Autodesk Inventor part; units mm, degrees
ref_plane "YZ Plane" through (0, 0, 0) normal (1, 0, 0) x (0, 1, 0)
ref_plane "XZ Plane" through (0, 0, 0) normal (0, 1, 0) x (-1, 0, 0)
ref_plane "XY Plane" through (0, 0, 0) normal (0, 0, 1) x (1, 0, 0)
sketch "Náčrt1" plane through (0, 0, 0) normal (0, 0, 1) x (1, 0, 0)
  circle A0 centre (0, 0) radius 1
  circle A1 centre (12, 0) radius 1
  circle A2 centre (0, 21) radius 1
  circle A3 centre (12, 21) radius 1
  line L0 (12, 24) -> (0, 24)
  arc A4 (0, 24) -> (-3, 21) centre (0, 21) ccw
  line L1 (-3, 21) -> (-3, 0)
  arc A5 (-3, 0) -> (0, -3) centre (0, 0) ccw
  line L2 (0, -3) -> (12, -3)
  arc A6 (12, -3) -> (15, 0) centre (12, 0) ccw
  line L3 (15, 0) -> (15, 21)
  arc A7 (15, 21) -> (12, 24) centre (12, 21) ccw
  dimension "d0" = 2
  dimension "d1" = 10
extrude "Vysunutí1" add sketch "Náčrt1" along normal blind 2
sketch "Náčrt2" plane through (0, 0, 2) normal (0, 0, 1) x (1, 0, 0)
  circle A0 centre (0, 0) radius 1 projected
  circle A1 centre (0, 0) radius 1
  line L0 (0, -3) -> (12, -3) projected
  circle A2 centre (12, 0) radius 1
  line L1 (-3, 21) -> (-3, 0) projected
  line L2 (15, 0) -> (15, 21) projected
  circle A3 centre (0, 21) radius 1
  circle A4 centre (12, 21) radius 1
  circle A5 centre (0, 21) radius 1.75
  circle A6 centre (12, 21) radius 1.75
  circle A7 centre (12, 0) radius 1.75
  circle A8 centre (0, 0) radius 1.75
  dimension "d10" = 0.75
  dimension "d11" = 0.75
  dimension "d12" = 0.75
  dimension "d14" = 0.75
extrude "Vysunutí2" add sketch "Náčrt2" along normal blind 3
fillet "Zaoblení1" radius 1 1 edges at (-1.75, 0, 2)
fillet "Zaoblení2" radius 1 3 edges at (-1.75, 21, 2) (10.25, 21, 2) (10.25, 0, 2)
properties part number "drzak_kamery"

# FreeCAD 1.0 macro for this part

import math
import FreeCAD as App
import Part
import Sketcher


def edges_at(feature, points):
    """Names of the edges that pass closest to the given points."""
    edges = feature.Shape.Edges
    near = lambda p: min(range(len(edges)), key=lambda i: edges[i].distToShape(Part.Vertex(*p))[0])
    return sorted({f"Edge{near(p) + 1}" for p in points})

doc = App.newDocument("Part")
body = doc.addObject("PartDesign::Body", "Body")

# Sketch on XY plane
sketch1 = body.newObject("Sketcher::SketchObject", "Sketch")
sketch1.AttachmentSupport = (doc.getObject("XY_Plane"), [""])
sketch1.MapMode = "FlatFace"
sketch1.addGeometry([
    Part.ArcOfCircle(Part.Circle(App.Vector(12, 21, 0), App.Vector(0, 0, 1), 3), math.radians(0), math.radians(90)),  # 0
    Part.LineSegment(App.Vector(12, 24, 0), App.Vector(0, 24, 0)),  # 1
    Part.ArcOfCircle(Part.Circle(App.Vector(0, 21, 0), App.Vector(0, 0, 1), 3), math.radians(90), math.radians(180)),  # 2
    Part.LineSegment(App.Vector(-3, 21, 0), App.Vector(-3, 0, 0)),  # 3
    Part.ArcOfCircle(Part.Circle(App.Vector(0, 0, 0), App.Vector(0, 0, 1), 3), math.radians(180), math.radians(270)),  # 4
    Part.LineSegment(App.Vector(0, -3, 0), App.Vector(12, -3, 0)),  # 5
    Part.ArcOfCircle(Part.Circle(App.Vector(12, 0, 0), App.Vector(0, 0, 1), 3), math.radians(-90), math.radians(0)),  # 6
    Part.LineSegment(App.Vector(15, 0, 0), App.Vector(15, 21, 0)),  # 7
    Part.Circle(App.Vector(0, 0, 0), App.Vector(0, 0, 1), 1),  # 8
    Part.Circle(App.Vector(12, 0, 0), App.Vector(0, 0, 1), 1),  # 9
    Part.Circle(App.Vector(0, 21, 0), App.Vector(0, 0, 1), 1),  # 10
    Part.Circle(App.Vector(12, 21, 0), App.Vector(0, 0, 1), 1),  # 11
], False)
sketch1.addConstraint([
    Sketcher.Constraint("Tangent", 0, 2, 1, 1),
    Sketcher.Constraint("Tangent", 1, 2, 2, 1),
    Sketcher.Constraint("Tangent", 2, 2, 3, 1),
    Sketcher.Constraint("Tangent", 3, 2, 4, 1),
    Sketcher.Constraint("Tangent", 4, 2, 5, 1),
    Sketcher.Constraint("Tangent", 5, 2, 6, 1),
    Sketcher.Constraint("Tangent", 6, 2, 7, 1),
    Sketcher.Constraint("Tangent", 7, 2, 0, 1),
    Sketcher.Constraint("Horizontal", 1),
    Sketcher.Constraint("Vertical", 3),
    Sketcher.Constraint("Horizontal", 5),
    Sketcher.Constraint("Vertical", 7),
    Sketcher.Constraint("Coincident", 4, 3, -1, 1),
    Sketcher.Constraint("Coincident", 8, 3, -1, 1),
    Sketcher.Constraint("Coincident", 9, 3, 6, 3),
    Sketcher.Constraint("Coincident", 10, 3, 2, 3),
    Sketcher.Constraint("Coincident", 11, 3, 0, 3),
    Sketcher.Constraint("Equal", 0, 2),
    Sketcher.Constraint("Equal", 2, 4),
    Sketcher.Constraint("Equal", 4, 6),
    Sketcher.Constraint("Equal", 8, 9),
    Sketcher.Constraint("Equal", 9, 10),
    Sketcher.Constraint("Equal", 10, 11),
    Sketcher.Constraint("Diameter", 8, 2.0),
    Sketcher.Constraint("Radius", 0, 3.0),
    Sketcher.Constraint("DistanceX", 1, 2, 1, 1, 12.0),
    Sketcher.Constraint("DistanceY", 3, 2, 3, 1, 21.0),
])
pad1 = body.newObject("PartDesign::Pad", "Pad")
pad1.Profile = sketch1
pad1.Length = 2

# Sketch on XY plane
sketch2 = body.newObject("Sketcher::SketchObject", "Sketch001")
sketch2.AttachmentSupport = (doc.getObject("XY_Plane"), [""])
sketch2.MapMode = "FlatFace"
sketch2.AttachmentOffset = App.Placement(App.Vector(0, 0, 2), App.Rotation())
sketch2.addGeometry([
    Part.Circle(App.Vector(0, 21, 0), App.Vector(0, 0, 1), 1.75),  # 0
    Part.Circle(App.Vector(0, 21, 0), App.Vector(0, 0, 1), 1),  # 1
    Part.Circle(App.Vector(12, 21, 0), App.Vector(0, 0, 1), 1.75),  # 2
    Part.Circle(App.Vector(12, 21, 0), App.Vector(0, 0, 1), 1),  # 3
    Part.Circle(App.Vector(12, 0, 0), App.Vector(0, 0, 1), 1.75),  # 4
    Part.Circle(App.Vector(12, 0, 0), App.Vector(0, 0, 1), 1),  # 5
    Part.Circle(App.Vector(0, 0, 0), App.Vector(0, 0, 1), 1.75),  # 6
    Part.Circle(App.Vector(0, 0, 0), App.Vector(0, 0, 1), 1),  # 7
], False)
sketch2.addConstraint([
    Sketcher.Constraint("Coincident", 6, 3, -1, 1),
    Sketcher.Constraint("Coincident", 7, 3, -1, 1),
    Sketcher.Constraint("Coincident", 1, 3, 0, 3),
    Sketcher.Constraint("Coincident", 3, 3, 2, 3),
    Sketcher.Constraint("Coincident", 5, 3, 4, 3),
    Sketcher.Constraint("Equal", 0, 2),
    Sketcher.Constraint("Equal", 1, 3),
    Sketcher.Constraint("Equal", 2, 4),
    Sketcher.Constraint("Equal", 3, 5),
    Sketcher.Constraint("Equal", 4, 6),
    Sketcher.Constraint("Equal", 5, 7),
    Sketcher.Constraint("PointOnObject", 0, 3, -2),
    Sketcher.Constraint("PointOnObject", 4, 3, -1),
    Sketcher.Constraint("Horizontal", 1, 3, 2, 3),
    Sketcher.Constraint("Vertical", 3, 3, 4, 3),
    Sketcher.Constraint("Diameter", 1, 2.0),
    Sketcher.Constraint("Diameter", 0, 3.5),
    Sketcher.Constraint("DistanceY", -1, 1, 0, 3, 21.0),
    Sketcher.Constraint("DistanceX", -1, 1, 2, 3, 12.0),
])
pad2 = body.newObject("PartDesign::Pad", "Pad001")
pad2.Profile = sketch2
pad2.Length = 3
doc.recompute()

fillet = body.newObject("PartDesign::Fillet", "Fillet")
fillet.Base = (pad2, edges_at(pad2, [(-1.75, 0, 2)]))
fillet.Radius = 1
doc.recompute()

fillet2 = body.newObject("PartDesign::Fillet", "Fillet001")
fillet2.Base = (fillet, edges_at(fillet, [(-1.75, 21, 2), (10.25, 21, 2), (10.25, 0, 2)]))
fillet2.Radius = 1

doc.recompute()
